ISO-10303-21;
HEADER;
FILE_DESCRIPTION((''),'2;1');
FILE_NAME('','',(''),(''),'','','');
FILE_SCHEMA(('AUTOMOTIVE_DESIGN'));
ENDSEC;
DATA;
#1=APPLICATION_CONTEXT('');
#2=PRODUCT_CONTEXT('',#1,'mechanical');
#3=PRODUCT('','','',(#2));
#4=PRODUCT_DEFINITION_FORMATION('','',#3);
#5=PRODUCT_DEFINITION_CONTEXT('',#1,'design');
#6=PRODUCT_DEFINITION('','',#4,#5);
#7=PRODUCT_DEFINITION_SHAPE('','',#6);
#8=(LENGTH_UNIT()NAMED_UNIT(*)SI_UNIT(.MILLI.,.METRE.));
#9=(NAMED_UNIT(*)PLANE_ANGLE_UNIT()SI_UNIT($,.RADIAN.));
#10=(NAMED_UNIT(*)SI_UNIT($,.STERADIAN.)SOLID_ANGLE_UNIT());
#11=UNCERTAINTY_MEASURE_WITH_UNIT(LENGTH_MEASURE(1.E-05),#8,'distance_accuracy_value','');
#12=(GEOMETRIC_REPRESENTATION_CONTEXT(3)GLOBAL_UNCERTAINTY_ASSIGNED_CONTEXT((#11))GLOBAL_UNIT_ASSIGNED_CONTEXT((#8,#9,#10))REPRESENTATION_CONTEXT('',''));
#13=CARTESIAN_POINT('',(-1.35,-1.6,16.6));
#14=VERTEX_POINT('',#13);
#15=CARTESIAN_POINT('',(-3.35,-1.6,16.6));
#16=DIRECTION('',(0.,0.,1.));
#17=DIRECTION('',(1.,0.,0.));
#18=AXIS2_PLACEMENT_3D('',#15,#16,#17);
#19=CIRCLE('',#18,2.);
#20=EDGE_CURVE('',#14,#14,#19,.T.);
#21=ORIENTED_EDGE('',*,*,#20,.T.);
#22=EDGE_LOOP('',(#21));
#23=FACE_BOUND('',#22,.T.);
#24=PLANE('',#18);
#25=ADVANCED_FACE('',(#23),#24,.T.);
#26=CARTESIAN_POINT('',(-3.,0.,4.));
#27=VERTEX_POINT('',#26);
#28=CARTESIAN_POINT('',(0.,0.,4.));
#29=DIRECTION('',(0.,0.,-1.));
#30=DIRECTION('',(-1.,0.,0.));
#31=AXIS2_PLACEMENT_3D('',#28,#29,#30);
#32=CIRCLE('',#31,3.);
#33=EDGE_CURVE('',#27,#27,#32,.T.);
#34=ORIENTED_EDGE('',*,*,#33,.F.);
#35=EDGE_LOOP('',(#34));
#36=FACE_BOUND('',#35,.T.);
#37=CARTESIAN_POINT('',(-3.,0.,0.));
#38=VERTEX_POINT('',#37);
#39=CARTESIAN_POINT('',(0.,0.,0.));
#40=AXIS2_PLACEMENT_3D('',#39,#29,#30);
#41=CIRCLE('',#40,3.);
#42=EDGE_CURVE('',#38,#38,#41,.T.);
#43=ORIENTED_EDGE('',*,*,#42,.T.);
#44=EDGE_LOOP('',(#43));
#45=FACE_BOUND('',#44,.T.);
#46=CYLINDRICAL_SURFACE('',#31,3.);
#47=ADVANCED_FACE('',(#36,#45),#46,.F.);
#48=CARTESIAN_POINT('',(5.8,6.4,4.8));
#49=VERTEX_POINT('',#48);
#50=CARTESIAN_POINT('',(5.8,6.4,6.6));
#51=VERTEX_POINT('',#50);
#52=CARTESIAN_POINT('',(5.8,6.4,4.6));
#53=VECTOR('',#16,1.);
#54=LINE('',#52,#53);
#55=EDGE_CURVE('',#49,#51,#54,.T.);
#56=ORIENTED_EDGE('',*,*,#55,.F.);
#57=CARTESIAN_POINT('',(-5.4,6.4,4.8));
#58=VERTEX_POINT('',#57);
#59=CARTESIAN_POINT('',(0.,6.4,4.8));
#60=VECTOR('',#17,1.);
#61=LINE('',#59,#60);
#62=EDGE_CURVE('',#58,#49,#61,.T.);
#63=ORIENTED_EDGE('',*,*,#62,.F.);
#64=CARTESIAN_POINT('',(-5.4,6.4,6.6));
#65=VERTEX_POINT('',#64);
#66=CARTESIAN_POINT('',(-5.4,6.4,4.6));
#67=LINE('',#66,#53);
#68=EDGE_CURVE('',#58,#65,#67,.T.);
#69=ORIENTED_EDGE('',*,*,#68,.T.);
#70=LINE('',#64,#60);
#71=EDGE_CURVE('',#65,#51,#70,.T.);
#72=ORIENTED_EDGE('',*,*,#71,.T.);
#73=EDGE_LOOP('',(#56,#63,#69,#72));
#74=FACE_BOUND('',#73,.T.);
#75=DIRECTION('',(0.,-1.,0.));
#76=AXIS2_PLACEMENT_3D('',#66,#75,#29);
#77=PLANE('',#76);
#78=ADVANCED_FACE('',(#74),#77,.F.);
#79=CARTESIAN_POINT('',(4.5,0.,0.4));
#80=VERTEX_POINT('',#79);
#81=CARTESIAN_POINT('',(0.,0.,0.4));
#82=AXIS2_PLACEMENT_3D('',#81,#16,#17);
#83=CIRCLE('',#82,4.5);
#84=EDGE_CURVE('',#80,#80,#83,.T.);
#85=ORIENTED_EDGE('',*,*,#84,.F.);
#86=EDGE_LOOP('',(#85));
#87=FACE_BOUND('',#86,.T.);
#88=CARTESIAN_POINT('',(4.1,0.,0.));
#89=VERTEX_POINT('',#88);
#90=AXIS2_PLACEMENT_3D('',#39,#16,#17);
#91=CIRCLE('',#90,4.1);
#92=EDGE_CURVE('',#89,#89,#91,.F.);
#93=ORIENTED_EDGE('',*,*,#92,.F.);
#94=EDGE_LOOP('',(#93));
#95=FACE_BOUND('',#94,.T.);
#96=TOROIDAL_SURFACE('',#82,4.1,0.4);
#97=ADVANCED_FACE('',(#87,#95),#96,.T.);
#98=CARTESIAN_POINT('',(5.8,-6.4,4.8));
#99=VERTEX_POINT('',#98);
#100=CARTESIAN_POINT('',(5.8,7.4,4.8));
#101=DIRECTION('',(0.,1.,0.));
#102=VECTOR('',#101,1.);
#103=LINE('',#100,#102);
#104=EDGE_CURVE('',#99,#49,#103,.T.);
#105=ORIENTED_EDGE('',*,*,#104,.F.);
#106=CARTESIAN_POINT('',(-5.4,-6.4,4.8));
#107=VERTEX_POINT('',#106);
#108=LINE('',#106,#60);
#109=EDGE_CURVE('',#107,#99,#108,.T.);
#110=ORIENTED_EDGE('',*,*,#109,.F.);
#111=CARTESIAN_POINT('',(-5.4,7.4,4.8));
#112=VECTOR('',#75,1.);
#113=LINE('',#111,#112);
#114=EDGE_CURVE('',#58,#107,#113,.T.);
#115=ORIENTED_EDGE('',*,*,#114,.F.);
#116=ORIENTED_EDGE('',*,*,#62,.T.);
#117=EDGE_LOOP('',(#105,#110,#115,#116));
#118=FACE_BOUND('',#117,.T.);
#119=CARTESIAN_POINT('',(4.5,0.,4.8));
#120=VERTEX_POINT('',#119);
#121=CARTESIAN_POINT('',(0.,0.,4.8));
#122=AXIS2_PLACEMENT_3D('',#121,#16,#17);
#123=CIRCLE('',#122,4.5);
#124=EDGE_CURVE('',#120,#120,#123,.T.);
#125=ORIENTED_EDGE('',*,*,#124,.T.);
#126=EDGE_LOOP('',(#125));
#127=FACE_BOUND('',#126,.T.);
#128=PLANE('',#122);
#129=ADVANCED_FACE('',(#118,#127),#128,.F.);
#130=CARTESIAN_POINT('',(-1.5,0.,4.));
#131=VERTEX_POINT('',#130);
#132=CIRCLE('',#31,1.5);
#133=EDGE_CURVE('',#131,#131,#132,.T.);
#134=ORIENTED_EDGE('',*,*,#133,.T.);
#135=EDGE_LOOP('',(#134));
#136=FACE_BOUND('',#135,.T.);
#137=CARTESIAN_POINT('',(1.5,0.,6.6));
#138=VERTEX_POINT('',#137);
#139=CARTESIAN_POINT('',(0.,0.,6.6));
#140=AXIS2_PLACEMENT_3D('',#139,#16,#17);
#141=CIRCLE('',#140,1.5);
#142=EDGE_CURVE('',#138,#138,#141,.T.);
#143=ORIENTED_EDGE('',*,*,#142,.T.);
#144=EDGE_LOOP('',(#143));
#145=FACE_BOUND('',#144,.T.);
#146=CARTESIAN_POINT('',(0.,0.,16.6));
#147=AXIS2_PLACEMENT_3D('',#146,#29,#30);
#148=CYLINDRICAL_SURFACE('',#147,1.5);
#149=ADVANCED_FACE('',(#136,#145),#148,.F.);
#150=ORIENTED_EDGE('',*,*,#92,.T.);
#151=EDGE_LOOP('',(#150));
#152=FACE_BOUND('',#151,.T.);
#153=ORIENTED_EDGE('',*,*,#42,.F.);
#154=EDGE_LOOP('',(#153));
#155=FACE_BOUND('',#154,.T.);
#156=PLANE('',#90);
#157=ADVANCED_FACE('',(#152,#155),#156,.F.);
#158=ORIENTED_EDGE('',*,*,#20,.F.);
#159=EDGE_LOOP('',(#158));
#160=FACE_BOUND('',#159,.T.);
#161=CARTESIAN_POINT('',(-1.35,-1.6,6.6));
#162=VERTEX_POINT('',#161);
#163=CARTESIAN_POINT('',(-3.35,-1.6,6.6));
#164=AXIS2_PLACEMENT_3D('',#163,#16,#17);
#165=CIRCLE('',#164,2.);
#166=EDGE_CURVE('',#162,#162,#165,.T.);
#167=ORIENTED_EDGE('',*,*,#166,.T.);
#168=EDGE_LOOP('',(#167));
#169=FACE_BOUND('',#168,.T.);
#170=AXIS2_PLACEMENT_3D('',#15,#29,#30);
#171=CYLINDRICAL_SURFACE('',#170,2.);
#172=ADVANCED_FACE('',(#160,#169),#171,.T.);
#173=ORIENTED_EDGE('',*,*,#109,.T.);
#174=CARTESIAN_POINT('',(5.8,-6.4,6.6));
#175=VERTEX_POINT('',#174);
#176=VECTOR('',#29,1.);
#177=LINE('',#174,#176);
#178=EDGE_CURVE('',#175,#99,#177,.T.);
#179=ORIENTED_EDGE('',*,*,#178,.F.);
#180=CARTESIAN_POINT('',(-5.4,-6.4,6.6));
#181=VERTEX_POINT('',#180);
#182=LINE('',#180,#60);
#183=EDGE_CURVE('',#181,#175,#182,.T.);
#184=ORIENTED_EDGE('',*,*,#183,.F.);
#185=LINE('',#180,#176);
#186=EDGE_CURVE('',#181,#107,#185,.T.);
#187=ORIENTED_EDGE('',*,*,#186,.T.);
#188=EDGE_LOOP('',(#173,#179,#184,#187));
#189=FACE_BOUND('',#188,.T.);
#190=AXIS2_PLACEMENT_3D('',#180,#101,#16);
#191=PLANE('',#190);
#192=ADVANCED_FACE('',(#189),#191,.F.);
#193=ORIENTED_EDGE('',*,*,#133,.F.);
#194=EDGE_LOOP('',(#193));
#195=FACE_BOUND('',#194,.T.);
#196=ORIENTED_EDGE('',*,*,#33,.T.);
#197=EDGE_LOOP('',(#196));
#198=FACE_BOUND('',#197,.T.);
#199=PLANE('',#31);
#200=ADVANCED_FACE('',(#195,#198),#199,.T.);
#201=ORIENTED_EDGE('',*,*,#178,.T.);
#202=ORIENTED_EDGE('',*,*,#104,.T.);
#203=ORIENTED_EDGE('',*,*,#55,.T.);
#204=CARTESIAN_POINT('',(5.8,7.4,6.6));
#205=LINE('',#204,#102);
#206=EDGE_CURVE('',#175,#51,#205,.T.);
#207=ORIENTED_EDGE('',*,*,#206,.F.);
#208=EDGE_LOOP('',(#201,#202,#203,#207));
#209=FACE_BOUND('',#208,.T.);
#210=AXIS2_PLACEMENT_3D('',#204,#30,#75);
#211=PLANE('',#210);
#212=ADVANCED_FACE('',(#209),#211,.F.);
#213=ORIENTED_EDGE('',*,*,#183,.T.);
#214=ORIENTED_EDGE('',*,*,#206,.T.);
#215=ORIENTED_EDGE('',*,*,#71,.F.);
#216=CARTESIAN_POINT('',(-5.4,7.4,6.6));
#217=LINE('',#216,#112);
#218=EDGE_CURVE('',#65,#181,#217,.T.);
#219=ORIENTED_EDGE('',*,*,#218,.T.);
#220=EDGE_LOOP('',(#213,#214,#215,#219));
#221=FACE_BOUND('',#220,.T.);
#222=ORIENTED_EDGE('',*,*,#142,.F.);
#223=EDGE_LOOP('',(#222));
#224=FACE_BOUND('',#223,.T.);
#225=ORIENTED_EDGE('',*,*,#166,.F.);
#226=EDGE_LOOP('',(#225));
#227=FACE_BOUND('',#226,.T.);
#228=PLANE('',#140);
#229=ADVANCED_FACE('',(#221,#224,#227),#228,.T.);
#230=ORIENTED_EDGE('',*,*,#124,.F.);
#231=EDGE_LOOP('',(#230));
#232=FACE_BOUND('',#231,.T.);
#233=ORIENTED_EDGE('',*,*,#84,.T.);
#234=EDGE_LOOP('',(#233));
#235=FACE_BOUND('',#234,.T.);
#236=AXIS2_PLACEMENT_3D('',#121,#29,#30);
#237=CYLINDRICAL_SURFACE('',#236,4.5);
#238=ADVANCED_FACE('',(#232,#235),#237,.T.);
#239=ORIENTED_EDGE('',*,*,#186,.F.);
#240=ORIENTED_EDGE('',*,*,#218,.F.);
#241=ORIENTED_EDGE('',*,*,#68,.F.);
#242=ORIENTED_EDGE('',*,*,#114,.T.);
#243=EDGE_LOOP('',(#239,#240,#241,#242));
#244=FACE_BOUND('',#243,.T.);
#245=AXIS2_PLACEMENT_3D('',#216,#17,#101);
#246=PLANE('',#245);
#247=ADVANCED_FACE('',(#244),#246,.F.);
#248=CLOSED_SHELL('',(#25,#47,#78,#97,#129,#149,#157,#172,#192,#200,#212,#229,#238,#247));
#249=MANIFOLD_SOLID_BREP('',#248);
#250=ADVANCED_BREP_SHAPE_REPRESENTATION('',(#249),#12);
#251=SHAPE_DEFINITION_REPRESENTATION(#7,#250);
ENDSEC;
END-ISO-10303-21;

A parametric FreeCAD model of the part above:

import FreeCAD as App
import Part
import Sketcher

V = App.Vector
Q = App.Units.Quantity


def edges_at(feature, points):
    """Names of the edges that pass closest to the given points."""
    edges = feature.Shape.Edges
    near = lambda p: min(range(len(edges)), key=lambda i: edges[i].distToShape(Part.Vertex(*p))[0])
    return sorted({f"Edge{near(p) + 1}" for p in points})


def add_polygon(sketch, points):
    """Adds a closed chain of lines whose ends are joined by coincident constraints."""
    first, n = sketch.GeometryCount, len(points)
    for a, b in zip(points, points[1:] + points[:1]):
        sketch.addGeometry(Part.LineSegment(App.Vector(*a, 0), App.Vector(*b, 0)), False)
    for i in range(n):
        sketch.addConstraint(Sketcher.Constraint("Coincident", first + i, 2, first + (i + 1) % n, 1))

doc = App.newDocument("Part")
body = doc.addObject("PartDesign::Body", "Body")

# Sketch on XY plane
sketch1 = body.newObject("Sketcher::SketchObject", "Sketch")
sketch1.AttachmentSupport = (doc.getObject("XY_Plane"), [""])
sketch1.MapMode = "FlatFace"
sketch1.addGeometry(Part.Circle(V(0, 0, 0), V(0, 0, 1), 4.5), False)
sketch1.addConstraint(Sketcher.Constraint("Coincident", 0, 3, -1, 1))
sketch1.addConstraint(Sketcher.Constraint("Diameter", 0, Q("9 mm")))
pad1 = body.newObject("PartDesign::Pad", "Pad")
pad1.Profile = sketch1
pad1.Length = 4.8

# Sketch on XY plane
sketch2 = body.newObject("Sketcher::SketchObject", "Sketch001")
sketch2.AttachmentSupport = (doc.getObject("XY_Plane"), [""])
sketch2.MapMode = "FlatFace"
sketch2.AttachmentOffset = App.Placement(V(0, 0, 4.8), App.Rotation())
add_polygon(sketch2, [(-5, 7), (-5, -6), (6, -6), (6, 7)])  # lines 0-3
sketch2.addConstraint(Sketcher.Constraint("Vertical", 0))
sketch2.addConstraint(Sketcher.Constraint("Horizontal", 1))
sketch2.addConstraint(Sketcher.Constraint("Vertical", 2))
sketch2.addConstraint(Sketcher.Constraint("Horizontal", 3))
sketch2.addConstraint(Sketcher.Constraint("DistanceX", 1, 1, 1, 2, Q("11.2 mm")))
sketch2.addConstraint(Sketcher.Constraint("DistanceY", 0, 2, 0, 1, Q("13.8 mm")))
sketch2.addConstraint(Sketcher.Constraint("DistanceX", 0, 2, -1, 1, Q("5.4 mm")))
sketch2.addConstraint(Sketcher.Constraint("DistanceY", 0, 2, -1, 1, Q("6.4 mm")))
pad2 = body.newObject("PartDesign::Pad", "Pad001")
pad2.Profile = sketch2
pad2.Length = 1.8

# Sketch on XY plane
sketch3 = body.newObject("Sketcher::SketchObject", "Sketch002")
sketch3.AttachmentSupport = (doc.getObject("XY_Plane"), [""])
sketch3.MapMode = "FlatFace"
sketch3.AttachmentOffset = App.Placement(V(0, 0, 6.6), App.Rotation())
sketch3.addGeometry(Part.Circle(V(-3.4, -1.6, 0), V(0, 0, 1), 2), False)
sketch3.addConstraint(Sketcher.Constraint("Diameter", 0, Q("4 mm")))
sketch3.addConstraint(Sketcher.Constraint("DistanceY", 0, 3, -1, 1, Q("1.6 mm")))
sketch3.addConstraint(Sketcher.Constraint("DistanceX", 0, 3, -1, 1, Q("3.35 mm")))
pad3 = body.newObject("PartDesign::Pad", "Pad002")
pad3.Profile = sketch3
pad3.Length = 10

# Sketch on XY plane
sketch4 = body.newObject("Sketcher::SketchObject", "Sketch003")
sketch4.AttachmentSupport = (doc.getObject("XY_Plane"), [""])
sketch4.MapMode = "FlatFace"
sketch4.AttachmentOffset = App.Placement(V(0, 0, 6.6), App.Rotation())
add_polygon(sketch4, [(-5.4, 7.4), (-5.4, 6.4), (5.8, 6.4), (5.8, 7.4)])  # lines 0-3
sketch4.addConstraint(Sketcher.Constraint("Vertical", 0))
sketch4.addConstraint(Sketcher.Constraint("Horizontal", 1))
sketch4.addConstraint(Sketcher.Constraint("Vertical", 2))
sketch4.addConstraint(Sketcher.Constraint("Horizontal", 3))
sketch4.addConstraint(Sketcher.Constraint("DistanceY", 0, 2, 0, 1, Q("1 mm")))
sketch4.addConstraint(Sketcher.Constraint("DistanceX", 1, 1, 1, 2, Q("11.2 mm")))
sketch4.addConstraint(Sketcher.Constraint("DistanceX", 0, 2, -1, 1, Q("5.4 mm")))
sketch4.addConstraint(Sketcher.Constraint("DistanceY", -1, 1, 0, 2, Q("6.4 mm")))
pocket1 = body.newObject("PartDesign::Pocket", "Pocket")
pocket1.Profile = sketch4
pocket1.Length = 2
doc.recompute()

fillet = body.newObject("PartDesign::Fillet", "Fillet")
fillet.Base = (pocket1, edges_at(pocket1, [(-4.5, 0, 0)]))
fillet.Radius = 0.4

# Sketch on XY plane
sketch5 = body.newObject("Sketcher::SketchObject", "Sketch004")
sketch5.AttachmentSupport = (doc.getObject("XY_Plane"), [""])
sketch5.MapMode = "FlatFace"
sketch5.addGeometry(Part.Circle(V(0, 0, 0), V(0, 0, 1), 3), False)
sketch5.addConstraint(Sketcher.Constraint("Coincident", 0, 3, -1, 1))
sketch5.addConstraint(Sketcher.Constraint("Diameter", 0, Q("6 mm")))
pocket2 = body.newObject("PartDesign::Pocket", "Pocket001")
pocket2.Profile = sketch5
pocket2.Length = 4
pocket2.Reversed = True

# Sketch on XY plane
sketch6 = body.newObject("Sketcher::SketchObject", "Sketch005")
sketch6.AttachmentSupport = (doc.getObject("XY_Plane"), [""])
sketch6.MapMode = "FlatFace"
sketch6.AttachmentOffset = App.Placement(V(0, 0, 4), App.Rotation())
sketch6.addGeometry(Part.Circle(V(0, 0, 0), V(0, 0, 1), 1.5), False)
sketch6.addConstraint(Sketcher.Constraint("Coincident", 0, 3, -1, 1))
sketch6.addConstraint(Sketcher.Constraint("Diameter", 0, Q("3 mm")))
pocket3 = body.newObject("PartDesign::Pocket", "Pocket002")
pocket3.Profile = sketch6
pocket3.Type = "ThroughAll"
pocket3.Reversed = True

doc.recompute()
